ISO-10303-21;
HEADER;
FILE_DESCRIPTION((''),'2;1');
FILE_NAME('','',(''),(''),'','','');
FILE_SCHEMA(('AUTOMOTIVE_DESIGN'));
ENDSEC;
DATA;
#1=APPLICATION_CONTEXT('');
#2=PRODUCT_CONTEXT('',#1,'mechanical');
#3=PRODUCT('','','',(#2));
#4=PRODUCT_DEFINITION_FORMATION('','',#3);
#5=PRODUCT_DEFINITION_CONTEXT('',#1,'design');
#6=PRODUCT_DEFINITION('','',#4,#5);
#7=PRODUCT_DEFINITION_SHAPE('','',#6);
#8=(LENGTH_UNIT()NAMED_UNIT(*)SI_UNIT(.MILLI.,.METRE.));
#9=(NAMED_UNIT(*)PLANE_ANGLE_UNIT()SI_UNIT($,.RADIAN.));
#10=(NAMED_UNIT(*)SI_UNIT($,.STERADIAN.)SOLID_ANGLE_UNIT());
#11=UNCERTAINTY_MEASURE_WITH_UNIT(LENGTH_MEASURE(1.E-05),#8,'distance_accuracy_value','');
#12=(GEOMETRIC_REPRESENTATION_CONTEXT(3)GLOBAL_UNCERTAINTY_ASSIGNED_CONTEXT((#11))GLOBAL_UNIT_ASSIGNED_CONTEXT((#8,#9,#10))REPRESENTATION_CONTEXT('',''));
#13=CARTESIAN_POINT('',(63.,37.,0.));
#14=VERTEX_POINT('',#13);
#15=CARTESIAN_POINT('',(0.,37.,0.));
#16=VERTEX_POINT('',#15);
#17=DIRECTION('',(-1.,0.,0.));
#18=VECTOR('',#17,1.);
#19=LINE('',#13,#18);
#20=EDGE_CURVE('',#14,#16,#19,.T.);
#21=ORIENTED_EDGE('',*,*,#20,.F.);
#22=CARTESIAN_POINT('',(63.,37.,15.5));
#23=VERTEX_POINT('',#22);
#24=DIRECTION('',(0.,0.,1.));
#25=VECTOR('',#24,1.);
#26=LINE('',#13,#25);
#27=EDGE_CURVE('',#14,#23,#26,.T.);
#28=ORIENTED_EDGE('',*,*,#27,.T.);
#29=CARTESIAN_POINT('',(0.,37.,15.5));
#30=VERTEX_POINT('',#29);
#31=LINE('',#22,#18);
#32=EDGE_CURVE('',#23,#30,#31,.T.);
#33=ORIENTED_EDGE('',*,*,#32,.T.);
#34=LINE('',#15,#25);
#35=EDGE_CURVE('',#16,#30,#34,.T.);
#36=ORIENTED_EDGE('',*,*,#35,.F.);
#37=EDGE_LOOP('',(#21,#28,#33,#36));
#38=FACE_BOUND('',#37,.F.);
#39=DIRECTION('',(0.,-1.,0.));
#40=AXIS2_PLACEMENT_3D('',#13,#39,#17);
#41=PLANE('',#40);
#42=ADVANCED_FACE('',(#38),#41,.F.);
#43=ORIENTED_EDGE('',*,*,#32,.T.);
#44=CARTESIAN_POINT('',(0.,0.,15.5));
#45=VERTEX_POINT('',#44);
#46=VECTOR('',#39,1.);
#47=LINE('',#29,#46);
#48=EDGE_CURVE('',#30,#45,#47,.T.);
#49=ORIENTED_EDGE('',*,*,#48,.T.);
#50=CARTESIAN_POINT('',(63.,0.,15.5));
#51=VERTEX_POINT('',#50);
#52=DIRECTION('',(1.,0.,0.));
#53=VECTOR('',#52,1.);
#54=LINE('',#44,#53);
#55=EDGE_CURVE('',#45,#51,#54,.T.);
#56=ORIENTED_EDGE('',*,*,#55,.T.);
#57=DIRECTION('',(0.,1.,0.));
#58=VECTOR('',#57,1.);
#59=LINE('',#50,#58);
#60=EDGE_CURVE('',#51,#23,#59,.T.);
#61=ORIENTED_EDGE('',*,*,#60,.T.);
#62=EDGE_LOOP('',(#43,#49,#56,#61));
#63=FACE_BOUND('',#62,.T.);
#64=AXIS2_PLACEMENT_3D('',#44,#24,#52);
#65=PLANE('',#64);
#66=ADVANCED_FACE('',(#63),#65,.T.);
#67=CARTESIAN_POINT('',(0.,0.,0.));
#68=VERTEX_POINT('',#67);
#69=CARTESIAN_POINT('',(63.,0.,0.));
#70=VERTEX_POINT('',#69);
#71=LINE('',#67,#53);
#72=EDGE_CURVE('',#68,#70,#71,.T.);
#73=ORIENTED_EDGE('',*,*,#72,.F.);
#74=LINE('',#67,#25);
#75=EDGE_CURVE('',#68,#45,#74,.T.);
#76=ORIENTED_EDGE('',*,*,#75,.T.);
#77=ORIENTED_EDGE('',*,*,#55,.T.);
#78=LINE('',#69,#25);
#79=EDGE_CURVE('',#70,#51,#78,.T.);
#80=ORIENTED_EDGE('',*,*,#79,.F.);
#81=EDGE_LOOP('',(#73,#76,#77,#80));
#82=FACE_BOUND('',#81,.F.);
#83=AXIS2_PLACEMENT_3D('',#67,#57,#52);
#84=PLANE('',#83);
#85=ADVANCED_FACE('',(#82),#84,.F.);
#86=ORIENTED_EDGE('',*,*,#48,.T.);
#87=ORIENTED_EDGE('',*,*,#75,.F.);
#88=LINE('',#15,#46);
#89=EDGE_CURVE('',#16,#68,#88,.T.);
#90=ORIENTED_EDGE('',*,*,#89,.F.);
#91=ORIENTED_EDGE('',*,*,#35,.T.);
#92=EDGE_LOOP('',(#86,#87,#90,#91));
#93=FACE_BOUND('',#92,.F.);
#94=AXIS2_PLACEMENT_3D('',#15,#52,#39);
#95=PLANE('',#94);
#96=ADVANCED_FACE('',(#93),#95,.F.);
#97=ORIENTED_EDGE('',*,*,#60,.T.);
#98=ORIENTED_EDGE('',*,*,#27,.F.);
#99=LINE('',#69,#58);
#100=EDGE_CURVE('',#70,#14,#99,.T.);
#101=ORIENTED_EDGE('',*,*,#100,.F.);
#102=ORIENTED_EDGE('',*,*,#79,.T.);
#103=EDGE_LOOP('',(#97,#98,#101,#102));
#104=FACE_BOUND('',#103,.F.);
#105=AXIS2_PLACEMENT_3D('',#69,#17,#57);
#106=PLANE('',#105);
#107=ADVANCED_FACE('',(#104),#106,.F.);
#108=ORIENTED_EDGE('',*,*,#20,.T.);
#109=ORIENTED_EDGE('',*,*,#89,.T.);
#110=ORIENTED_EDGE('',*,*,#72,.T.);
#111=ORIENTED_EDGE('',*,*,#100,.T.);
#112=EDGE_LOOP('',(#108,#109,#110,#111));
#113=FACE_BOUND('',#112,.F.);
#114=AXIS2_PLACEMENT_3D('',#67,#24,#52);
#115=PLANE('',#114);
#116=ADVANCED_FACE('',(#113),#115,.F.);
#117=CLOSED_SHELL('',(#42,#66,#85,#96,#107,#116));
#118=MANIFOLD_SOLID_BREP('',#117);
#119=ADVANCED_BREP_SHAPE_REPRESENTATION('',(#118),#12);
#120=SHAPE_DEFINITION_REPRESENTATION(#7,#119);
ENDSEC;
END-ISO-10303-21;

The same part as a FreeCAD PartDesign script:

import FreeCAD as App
import Part
import Sketcher

V = App.Vector

doc = App.newDocument("Part")
body = doc.addObject("PartDesign::Body", "Body")

sketch1 = body.newObject("Sketcher::SketchObject", "Sketch")
sketch1.AttachmentSupport = (doc.getObject("XY_Plane"), [""])
sketch1.MapMode = "FlatFace"
sketch1.addGeometry([
    Part.LineSegment(V(0, 37, 0), V(0, 0, 0)),
    Part.LineSegment(V(0, 0, 0), V(63, 0, 0)),
    Part.LineSegment(V(63, 0, 0), V(63, 37, 0)),
    Part.LineSegment(V(63, 37, 0), V(0, 37, 0)),
], False)
sketch1.addConstraint([
    Sketcher.Constraint("Coincident", 0, 2, 1, 1),
    Sketcher.Constraint("Coincident", 1, 2, 2, 1),
    Sketcher.Constraint("Coincident", 2, 2, 3, 1),
    Sketcher.Constraint("Coincident", 3, 2, 0, 1),
    Sketcher.Constraint("Vertical", 0),
    Sketcher.Constraint("Horizontal", 1),
    Sketcher.Constraint("Vertical", 2),
    Sketcher.Constraint("Horizontal", 3),
    Sketcher.Constraint("Coincident", 0, 2, -1, 1),
    Sketcher.Constraint("DistanceX", 1, 1, 1, 2, 63.0),
    Sketcher.Constraint("DistanceY", 0, 2, 0, 1, 37.0),
])
pad1 = body.newObject("PartDesign::Pad", "Pad")
pad1.Profile = sketch1
pad1.Length = 15.5

doc.recompute()
